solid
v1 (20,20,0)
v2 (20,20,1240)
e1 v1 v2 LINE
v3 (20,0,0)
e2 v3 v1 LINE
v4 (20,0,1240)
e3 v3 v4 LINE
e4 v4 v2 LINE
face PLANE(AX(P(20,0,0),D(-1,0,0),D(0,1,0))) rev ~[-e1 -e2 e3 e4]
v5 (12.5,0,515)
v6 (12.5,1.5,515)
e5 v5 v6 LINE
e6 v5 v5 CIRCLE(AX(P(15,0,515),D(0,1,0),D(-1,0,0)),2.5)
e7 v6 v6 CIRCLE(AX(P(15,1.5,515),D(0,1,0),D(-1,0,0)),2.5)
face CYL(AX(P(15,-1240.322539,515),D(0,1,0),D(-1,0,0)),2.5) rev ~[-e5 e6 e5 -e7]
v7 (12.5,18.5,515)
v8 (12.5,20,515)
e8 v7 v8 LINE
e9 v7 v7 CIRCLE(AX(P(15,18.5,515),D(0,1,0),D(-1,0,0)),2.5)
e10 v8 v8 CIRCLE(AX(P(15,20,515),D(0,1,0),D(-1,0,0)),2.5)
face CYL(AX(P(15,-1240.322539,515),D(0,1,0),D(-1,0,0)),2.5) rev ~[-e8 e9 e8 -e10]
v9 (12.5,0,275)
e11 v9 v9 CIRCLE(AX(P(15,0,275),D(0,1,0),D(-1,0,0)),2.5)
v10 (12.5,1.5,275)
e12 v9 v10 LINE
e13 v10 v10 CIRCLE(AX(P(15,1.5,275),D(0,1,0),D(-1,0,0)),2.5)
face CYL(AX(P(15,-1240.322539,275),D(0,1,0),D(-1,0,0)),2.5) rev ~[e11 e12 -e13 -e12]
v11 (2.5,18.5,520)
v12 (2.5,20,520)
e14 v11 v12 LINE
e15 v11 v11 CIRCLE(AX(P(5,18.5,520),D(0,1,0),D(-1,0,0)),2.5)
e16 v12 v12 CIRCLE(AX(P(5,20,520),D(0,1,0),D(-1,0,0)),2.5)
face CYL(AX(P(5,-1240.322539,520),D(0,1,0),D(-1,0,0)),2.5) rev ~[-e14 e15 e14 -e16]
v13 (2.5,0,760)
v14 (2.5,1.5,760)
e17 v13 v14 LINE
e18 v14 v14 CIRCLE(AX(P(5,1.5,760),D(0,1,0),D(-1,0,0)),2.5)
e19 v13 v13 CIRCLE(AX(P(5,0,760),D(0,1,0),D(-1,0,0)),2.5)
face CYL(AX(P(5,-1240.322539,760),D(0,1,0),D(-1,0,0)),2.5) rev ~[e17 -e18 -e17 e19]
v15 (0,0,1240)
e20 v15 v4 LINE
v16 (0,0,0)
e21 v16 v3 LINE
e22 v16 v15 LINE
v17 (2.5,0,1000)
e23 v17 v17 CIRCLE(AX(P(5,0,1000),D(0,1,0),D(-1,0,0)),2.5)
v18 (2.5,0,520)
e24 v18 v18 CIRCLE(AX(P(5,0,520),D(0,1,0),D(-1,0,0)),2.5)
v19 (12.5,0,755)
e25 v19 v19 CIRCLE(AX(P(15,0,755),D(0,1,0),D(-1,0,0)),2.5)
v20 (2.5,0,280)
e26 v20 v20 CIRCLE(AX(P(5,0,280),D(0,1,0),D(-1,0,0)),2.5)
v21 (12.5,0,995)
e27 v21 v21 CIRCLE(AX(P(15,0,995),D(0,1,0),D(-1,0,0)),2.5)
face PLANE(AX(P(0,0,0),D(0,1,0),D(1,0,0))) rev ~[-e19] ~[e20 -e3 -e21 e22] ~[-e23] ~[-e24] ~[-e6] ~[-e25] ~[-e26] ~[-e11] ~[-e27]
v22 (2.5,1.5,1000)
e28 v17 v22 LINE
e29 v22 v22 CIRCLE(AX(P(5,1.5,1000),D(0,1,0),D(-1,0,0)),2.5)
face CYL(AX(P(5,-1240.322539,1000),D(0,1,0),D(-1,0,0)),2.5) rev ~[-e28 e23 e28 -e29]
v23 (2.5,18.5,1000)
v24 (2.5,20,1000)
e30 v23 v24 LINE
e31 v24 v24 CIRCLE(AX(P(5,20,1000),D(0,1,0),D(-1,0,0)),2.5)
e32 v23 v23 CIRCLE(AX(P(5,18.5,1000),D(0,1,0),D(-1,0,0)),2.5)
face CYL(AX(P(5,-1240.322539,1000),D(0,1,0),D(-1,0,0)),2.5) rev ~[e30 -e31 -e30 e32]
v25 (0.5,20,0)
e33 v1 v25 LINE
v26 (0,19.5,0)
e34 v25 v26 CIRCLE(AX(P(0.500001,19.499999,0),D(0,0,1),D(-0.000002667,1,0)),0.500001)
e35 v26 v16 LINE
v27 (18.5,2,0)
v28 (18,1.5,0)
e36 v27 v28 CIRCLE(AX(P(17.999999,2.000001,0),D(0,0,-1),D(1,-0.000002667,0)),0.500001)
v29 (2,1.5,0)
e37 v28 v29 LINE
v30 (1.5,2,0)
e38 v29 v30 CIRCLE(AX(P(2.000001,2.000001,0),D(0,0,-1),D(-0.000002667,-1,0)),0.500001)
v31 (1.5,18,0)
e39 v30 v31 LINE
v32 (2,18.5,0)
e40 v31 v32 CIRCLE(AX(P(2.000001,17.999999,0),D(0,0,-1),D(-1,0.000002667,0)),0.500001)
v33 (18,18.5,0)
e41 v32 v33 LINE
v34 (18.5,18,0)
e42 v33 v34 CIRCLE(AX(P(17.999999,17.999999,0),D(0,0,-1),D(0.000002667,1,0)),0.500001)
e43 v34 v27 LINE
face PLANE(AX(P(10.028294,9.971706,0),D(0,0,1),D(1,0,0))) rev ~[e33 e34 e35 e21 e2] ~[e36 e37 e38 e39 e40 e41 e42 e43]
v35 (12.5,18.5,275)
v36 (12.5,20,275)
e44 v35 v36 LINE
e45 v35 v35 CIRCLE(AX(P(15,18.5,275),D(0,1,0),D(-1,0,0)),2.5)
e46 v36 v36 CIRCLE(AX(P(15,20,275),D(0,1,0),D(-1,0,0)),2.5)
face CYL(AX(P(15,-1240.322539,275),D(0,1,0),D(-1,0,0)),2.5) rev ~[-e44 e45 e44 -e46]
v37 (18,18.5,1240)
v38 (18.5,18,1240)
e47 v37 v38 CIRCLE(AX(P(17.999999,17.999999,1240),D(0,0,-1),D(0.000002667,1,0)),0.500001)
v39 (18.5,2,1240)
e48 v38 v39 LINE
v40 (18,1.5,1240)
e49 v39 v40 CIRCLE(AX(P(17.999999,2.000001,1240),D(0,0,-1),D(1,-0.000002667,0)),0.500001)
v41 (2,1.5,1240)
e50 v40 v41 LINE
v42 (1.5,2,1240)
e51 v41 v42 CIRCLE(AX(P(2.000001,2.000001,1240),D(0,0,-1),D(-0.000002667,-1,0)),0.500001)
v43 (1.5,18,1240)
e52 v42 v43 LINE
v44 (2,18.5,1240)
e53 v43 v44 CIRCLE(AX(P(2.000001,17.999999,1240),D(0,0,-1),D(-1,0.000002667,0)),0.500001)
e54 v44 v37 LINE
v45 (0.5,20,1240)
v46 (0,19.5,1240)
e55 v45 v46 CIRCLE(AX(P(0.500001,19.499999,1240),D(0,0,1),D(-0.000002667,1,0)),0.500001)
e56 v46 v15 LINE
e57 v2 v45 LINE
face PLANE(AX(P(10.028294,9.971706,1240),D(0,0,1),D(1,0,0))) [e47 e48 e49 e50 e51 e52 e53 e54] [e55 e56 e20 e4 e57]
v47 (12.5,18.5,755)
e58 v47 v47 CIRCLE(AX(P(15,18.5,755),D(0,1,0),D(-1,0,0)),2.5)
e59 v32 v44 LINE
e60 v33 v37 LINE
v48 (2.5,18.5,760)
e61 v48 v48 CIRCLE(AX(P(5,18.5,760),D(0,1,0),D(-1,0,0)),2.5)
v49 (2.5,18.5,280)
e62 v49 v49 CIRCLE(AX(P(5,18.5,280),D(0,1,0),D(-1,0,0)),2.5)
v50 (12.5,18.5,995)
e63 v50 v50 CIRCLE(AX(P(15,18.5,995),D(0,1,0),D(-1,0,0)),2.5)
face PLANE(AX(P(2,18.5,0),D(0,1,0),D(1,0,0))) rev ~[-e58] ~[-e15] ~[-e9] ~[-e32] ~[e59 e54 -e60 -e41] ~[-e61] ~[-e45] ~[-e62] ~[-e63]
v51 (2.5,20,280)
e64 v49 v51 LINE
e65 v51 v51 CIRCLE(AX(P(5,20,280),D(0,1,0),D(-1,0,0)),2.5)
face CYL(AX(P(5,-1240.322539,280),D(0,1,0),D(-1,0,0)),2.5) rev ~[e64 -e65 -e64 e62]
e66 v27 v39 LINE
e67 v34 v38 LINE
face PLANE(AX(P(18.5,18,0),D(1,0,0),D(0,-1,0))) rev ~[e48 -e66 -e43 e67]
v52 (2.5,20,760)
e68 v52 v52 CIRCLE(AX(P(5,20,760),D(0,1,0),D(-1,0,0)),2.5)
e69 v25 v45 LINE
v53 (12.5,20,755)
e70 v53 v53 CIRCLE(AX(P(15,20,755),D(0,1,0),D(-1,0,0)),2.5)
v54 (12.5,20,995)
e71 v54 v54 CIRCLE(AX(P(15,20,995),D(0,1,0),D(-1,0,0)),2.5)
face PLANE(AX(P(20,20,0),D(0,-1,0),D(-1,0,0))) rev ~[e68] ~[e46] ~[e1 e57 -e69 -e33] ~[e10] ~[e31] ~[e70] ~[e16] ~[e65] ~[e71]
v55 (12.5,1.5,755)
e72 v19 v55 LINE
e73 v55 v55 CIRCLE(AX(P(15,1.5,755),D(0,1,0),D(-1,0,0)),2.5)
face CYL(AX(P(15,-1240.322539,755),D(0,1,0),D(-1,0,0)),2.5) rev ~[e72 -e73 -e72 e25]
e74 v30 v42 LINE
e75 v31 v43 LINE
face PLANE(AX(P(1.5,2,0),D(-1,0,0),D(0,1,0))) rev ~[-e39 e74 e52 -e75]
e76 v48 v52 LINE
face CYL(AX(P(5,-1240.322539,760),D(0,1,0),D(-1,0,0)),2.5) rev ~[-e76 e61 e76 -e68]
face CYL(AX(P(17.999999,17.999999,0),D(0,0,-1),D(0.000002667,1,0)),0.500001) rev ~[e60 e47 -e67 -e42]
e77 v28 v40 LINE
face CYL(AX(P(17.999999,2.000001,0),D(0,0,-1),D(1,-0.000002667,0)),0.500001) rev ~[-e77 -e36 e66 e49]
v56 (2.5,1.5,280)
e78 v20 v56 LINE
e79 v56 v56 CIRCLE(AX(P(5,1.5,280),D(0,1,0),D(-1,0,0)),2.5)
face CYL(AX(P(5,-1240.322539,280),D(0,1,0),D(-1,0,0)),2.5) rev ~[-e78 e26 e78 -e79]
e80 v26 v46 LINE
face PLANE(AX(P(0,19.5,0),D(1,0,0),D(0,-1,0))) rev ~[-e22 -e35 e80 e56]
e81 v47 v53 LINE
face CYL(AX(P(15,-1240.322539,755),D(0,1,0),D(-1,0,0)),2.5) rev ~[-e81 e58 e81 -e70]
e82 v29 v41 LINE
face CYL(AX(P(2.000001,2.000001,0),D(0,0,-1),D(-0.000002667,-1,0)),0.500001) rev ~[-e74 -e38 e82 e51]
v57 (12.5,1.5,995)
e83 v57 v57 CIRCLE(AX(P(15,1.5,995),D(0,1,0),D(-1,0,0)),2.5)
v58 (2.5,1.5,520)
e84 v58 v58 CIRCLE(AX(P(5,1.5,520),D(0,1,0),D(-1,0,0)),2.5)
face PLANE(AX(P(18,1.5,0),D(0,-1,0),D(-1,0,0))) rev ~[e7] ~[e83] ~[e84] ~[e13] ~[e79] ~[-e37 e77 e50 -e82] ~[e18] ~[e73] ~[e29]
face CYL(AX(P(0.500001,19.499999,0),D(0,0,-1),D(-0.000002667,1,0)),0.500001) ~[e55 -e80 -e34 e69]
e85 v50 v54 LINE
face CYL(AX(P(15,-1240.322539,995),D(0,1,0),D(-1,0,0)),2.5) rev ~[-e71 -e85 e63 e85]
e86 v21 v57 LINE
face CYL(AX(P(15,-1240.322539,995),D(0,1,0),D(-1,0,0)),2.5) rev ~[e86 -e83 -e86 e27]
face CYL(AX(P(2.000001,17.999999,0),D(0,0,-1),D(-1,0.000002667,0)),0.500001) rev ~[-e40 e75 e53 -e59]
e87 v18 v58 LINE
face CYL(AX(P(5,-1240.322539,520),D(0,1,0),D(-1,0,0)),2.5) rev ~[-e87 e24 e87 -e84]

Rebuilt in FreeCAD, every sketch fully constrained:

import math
import FreeCAD as App
import Part
import Sketcher
Q = App.Units.Quantity

doc = App.newDocument("Part")
body = doc.addObject("PartDesign::Body", "Body")

# Sketch on XY plane
sketch1 = body.newObject("Sketcher::SketchObject", "Sketch")
sketch1.AttachmentSupport = (doc.getObject("XY_Plane"), [""])
sketch1.MapMode = "FlatFace"
sketch1.addGeometry(Part.LineSegment(App.Vector(0, 19.5, 0), App.Vector(0, 0, 0)), False)
sketch1.addGeometry(Part.LineSegment(App.Vector(0, 0, 0), App.Vector(20, 0, 0)), False)
sketch1.addGeometry(Part.LineSegment(App.Vector(20, 0, 0), App.Vector(20, 20, 0)), False)
sketch1.addGeometry(Part.LineSegment(App.Vector(20, 20, 0), App.Vector(0.5, 20, 0)), False)
sketch1.addGeometry(Part.ArcOfCircle(Part.Circle(App.Vector(0.5, 19.5, 0), App.Vector(0, 0, 1), 0.5), math.radians(90), math.radians(180)), False)
sketch1.addGeometry(Part.LineSegment(App.Vector(1.5, 2, 0), App.Vector(1.5, 18, 0)), False)
sketch1.addGeometry(Part.ArcOfCircle(Part.Circle(App.Vector(2, 18, 0), App.Vector(0, 0, 1), 0.5), math.radians(90), math.radians(180)), False)
sketch1.addGeometry(Part.LineSegment(App.Vector(2, 18.5, 0), App.Vector(18, 18.5, 0)), False)
sketch1.addGeometry(Part.ArcOfCircle(Part.Circle(App.Vector(18, 18, 0), App.Vector(0, 0, 1), 0.5), math.radians(0), math.radians(90)), False)
sketch1.addGeometry(Part.LineSegment(App.Vector(18.5, 18, 0), App.Vector(18.5, 2, 0)), False)
sketch1.addGeometry(Part.ArcOfCircle(Part.Circle(App.Vector(18, 2, 0), App.Vector(0, 0, 1), 0.5), math.radians(-90), math.radians(0)), False)
sketch1.addGeometry(Part.LineSegment(App.Vector(18, 1.5, 0), App.Vector(2, 1.5, 0)), False)
sketch1.addGeometry(Part.ArcOfCircle(Part.Circle(App.Vector(2, 2, 0), App.Vector(0, 0, 1), 0.5), math.radians(-180), math.radians(-90)), False)
sketch1.addConstraint(Sketcher.Constraint("Coincident", 0, 2, 1, 1))
sketch1.addConstraint(Sketcher.Constraint("Coincident", 1, 2, 2, 1))
sketch1.addConstraint(Sketcher.Constraint("Coincident", 2, 2, 3, 1))
sketch1.addConstraint(Sketcher.Constraint("Coincident", 3, 2, 4, 1))
sketch1.addConstraint(Sketcher.Constraint("Coincident", 4, 2, 0, 1))
sketch1.addConstraint(Sketcher.Constraint("Coincident", 5, 2, 6, 2))
sketch1.addConstraint(Sketcher.Constraint("Coincident", 6, 1, 7, 1))
sketch1.addConstraint(Sketcher.Constraint("Coincident", 7, 2, 8, 2))
sketch1.addConstraint(Sketcher.Constraint("Coincident", 8, 1, 9, 1))
sketch1.addConstraint(Sketcher.Constraint("Coincident", 9, 2, 10, 2))
sketch1.addConstraint(Sketcher.Constraint("Coincident", 10, 1, 11, 1))
sketch1.addConstraint(Sketcher.Constraint("Coincident", 11, 2, 12, 2))
sketch1.addConstraint(Sketcher.Constraint("Coincident", 12, 1, 5, 1))
sketch1.addConstraint(Sketcher.Constraint("Vertical", 0))
sketch1.addConstraint(Sketcher.Constraint("Horizontal", 1))
sketch1.addConstraint(Sketcher.Constraint("Vertical", 2))
sketch1.addConstraint(Sketcher.Constraint("Horizontal", 3))
sketch1.addConstraint(Sketcher.Constraint("Vertical", 5))
sketch1.addConstraint(Sketcher.Constraint("Horizontal", 7))
sketch1.addConstraint(Sketcher.Constraint("Vertical", 9))
sketch1.addConstraint(Sketcher.Constraint("Horizontal", 11))
sketch1.addConstraint(Sketcher.Constraint("Coincident", 0, 2, -1, 1))
sketch1.addConstraint(Sketcher.Constraint("Equal", 4, 6))
sketch1.addConstraint(Sketcher.Constraint("Equal", 6, 8))
sketch1.addConstraint(Sketcher.Constraint("Equal", 8, 10))
sketch1.addConstraint(Sketcher.Constraint("Equal", 10, 12))
sketch1.addConstraint(Sketcher.Constraint("Horizontal", 8, 3, 5, 2))
sketch1.addConstraint(Sketcher.Constraint("Horizontal", 5, 2, 8, 1))
sketch1.addConstraint(Sketcher.Constraint("Horizontal", 12, 3, 9, 2))
sketch1.addConstraint(Sketcher.Constraint("Horizontal", 9, 2, 12, 1))
sketch1.addConstraint(Sketcher.Constraint("Vertical", 4, 3, 3, 2))
sketch1.addConstraint(Sketcher.Constraint("Vertical", 12, 3, 6, 1))
sketch1.addConstraint(Sketcher.Constraint("Vertical", 10, 3, 7, 2))
sketch1.addConstraint(Sketcher.Constraint("Vertical", 7, 2, 10, 1))
sketch1.addConstraint(Sketcher.Constraint("Vertical", 6, 1, 11, 2))
sketch1.addConstraint(Sketcher.Constraint("Equal", 3, 0))
sketch1.addConstraint(Sketcher.Constraint("Equal", 1, 2))
sketch1.addConstraint(Sketcher.Constraint("Equal", 11, 5))
sketch1.addConstraint(Sketcher.Constraint("Radius", 4, Q("0.500001 mm")))
sketch1.addConstraint(Sketcher.Constraint("DistanceX", 1, 1, 1, 2, Q("20 mm")))
sketch1.addConstraint(Sketcher.Constraint("DistanceX", 7, 1, 7, 2, Q("16 mm")))
sketch1.addConstraint(Sketcher.Constraint("DistanceX", -1, 1, 6, 3, Q("2.000001 mm")))
sketch1.addConstraint(Sketcher.Constraint("DistanceY", -1, 1, 6, 3, Q("17.999999 mm")))
pad1 = body.newObject("PartDesign::Pad", "Pad")
pad1.Profile = sketch1
pad1.Length = 1240

# Sketch on XZ plane
sketch2 = body.newObject("Sketcher::SketchObject", "Sketch001")
sketch2.AttachmentSupport = (doc.getObject("XZ_Plane"), [""])
sketch2.MapMode = "FlatFace"
sketch2.addGeometry(Part.Circle(App.Vector(5, 1000, 0), App.Vector(0, 0, 1), 2.5), False)
sketch2.addGeometry(Part.Circle(App.Vector(15, 995, 0), App.Vector(0, 0, 1), 2.5), False)
sketch2.addGeometry(Part.Circle(App.Vector(5, 760, 0), App.Vector(0, 0, 1), 2.5), False)
sketch2.addGeometry(Part.Circle(App.Vector(15, 755, 0), App.Vector(0, 0, 1), 2.5), False)
sketch2.addGeometry(Part.Circle(App.Vector(5, 520, 0), App.Vector(0, 0, 1), 2.5), False)
sketch2.addGeometry(Part.Circle(App.Vector(15, 515, 0), App.Vector(0, 0, 1), 2.5), False)
sketch2.addGeometry(Part.Circle(App.Vector(5, 280, 0), App.Vector(0, 0, 1), 2.5), False)
sketch2.addGeometry(Part.Circle(App.Vector(15, 275, 0), App.Vector(0, 0, 1), 2.5), False)
sketch2.addConstraint(Sketcher.Constraint("Equal", 0, 1))
sketch2.addConstraint(Sketcher.Constraint("Equal", 1, 2))
sketch2.addConstraint(Sketcher.Constraint("Equal", 2, 3))
sketch2.addConstraint(Sketcher.Constraint("Equal", 3, 4))
sketch2.addConstraint(Sketcher.Constraint("Equal", 4, 5))
sketch2.addConstraint(Sketcher.Constraint("Equal", 5, 6))
sketch2.addConstraint(Sketcher.Constraint("Equal", 6, 7))
sketch2.addConstraint(Sketcher.Constraint("Vertical", 0, 3, 2, 3))
sketch2.addConstraint(Sketcher.Constraint("Vertical", 1, 3, 3, 3))
sketch2.addConstraint(Sketcher.Constraint("Vertical", 2, 3, 4, 3))
sketch2.addConstraint(Sketcher.Constraint("Vertical", 3, 3, 5, 3))
sketch2.addConstraint(Sketcher.Constraint("Vertical", 4, 3, 6, 3))
sketch2.addConstraint(Sketcher.Constraint("Vertical", 5, 3, 7, 3))
sketch2.addConstraint(Sketcher.Constraint("Diameter", 0, Q("5 mm")))
sketch2.addConstraint(Sketcher.Constraint("DistanceX", -1, 1, 0, 3, Q("5 mm")))
sketch2.addConstraint(Sketcher.Constraint("DistanceY", -1, 1, 0, 3, Q("1000 mm")))
sketch2.addConstraint(Sketcher.Constraint("DistanceX", -1, 1, 1, 3, Q("15 mm")))
sketch2.addConstraint(Sketcher.Constraint("DistanceY", -1, 1, 1, 3, Q("995 mm")))
sketch2.addConstraint(Sketcher.Constraint("DistanceY", -1, 1, 2, 3, Q("760 mm")))
sketch2.addConstraint(Sketcher.Constraint("DistanceY", -1, 1, 3, 3, Q("755 mm")))
sketch2.addConstraint(Sketcher.Constraint("DistanceY", -1, 1, 4, 3, Q("520 mm")))
sketch2.addConstraint(Sketcher.Constraint("DistanceY", -1, 1, 5, 3, Q("515 mm")))
sketch2.addConstraint(Sketcher.Constraint("DistanceY", -1, 1, 6, 3, Q("280 mm")))
sketch2.addConstraint(Sketcher.Constraint("DistanceY", -1, 1, 7, 3, Q("275 mm")))
doc.recompute()
hole = body.newObject("PartDesign::Hole", "Hole")
hole.Profile = sketch2
hole.ThreadType = "None"
hole.Diameter = 5
hole.DepthType = "ThroughAll"

doc.recompute()
